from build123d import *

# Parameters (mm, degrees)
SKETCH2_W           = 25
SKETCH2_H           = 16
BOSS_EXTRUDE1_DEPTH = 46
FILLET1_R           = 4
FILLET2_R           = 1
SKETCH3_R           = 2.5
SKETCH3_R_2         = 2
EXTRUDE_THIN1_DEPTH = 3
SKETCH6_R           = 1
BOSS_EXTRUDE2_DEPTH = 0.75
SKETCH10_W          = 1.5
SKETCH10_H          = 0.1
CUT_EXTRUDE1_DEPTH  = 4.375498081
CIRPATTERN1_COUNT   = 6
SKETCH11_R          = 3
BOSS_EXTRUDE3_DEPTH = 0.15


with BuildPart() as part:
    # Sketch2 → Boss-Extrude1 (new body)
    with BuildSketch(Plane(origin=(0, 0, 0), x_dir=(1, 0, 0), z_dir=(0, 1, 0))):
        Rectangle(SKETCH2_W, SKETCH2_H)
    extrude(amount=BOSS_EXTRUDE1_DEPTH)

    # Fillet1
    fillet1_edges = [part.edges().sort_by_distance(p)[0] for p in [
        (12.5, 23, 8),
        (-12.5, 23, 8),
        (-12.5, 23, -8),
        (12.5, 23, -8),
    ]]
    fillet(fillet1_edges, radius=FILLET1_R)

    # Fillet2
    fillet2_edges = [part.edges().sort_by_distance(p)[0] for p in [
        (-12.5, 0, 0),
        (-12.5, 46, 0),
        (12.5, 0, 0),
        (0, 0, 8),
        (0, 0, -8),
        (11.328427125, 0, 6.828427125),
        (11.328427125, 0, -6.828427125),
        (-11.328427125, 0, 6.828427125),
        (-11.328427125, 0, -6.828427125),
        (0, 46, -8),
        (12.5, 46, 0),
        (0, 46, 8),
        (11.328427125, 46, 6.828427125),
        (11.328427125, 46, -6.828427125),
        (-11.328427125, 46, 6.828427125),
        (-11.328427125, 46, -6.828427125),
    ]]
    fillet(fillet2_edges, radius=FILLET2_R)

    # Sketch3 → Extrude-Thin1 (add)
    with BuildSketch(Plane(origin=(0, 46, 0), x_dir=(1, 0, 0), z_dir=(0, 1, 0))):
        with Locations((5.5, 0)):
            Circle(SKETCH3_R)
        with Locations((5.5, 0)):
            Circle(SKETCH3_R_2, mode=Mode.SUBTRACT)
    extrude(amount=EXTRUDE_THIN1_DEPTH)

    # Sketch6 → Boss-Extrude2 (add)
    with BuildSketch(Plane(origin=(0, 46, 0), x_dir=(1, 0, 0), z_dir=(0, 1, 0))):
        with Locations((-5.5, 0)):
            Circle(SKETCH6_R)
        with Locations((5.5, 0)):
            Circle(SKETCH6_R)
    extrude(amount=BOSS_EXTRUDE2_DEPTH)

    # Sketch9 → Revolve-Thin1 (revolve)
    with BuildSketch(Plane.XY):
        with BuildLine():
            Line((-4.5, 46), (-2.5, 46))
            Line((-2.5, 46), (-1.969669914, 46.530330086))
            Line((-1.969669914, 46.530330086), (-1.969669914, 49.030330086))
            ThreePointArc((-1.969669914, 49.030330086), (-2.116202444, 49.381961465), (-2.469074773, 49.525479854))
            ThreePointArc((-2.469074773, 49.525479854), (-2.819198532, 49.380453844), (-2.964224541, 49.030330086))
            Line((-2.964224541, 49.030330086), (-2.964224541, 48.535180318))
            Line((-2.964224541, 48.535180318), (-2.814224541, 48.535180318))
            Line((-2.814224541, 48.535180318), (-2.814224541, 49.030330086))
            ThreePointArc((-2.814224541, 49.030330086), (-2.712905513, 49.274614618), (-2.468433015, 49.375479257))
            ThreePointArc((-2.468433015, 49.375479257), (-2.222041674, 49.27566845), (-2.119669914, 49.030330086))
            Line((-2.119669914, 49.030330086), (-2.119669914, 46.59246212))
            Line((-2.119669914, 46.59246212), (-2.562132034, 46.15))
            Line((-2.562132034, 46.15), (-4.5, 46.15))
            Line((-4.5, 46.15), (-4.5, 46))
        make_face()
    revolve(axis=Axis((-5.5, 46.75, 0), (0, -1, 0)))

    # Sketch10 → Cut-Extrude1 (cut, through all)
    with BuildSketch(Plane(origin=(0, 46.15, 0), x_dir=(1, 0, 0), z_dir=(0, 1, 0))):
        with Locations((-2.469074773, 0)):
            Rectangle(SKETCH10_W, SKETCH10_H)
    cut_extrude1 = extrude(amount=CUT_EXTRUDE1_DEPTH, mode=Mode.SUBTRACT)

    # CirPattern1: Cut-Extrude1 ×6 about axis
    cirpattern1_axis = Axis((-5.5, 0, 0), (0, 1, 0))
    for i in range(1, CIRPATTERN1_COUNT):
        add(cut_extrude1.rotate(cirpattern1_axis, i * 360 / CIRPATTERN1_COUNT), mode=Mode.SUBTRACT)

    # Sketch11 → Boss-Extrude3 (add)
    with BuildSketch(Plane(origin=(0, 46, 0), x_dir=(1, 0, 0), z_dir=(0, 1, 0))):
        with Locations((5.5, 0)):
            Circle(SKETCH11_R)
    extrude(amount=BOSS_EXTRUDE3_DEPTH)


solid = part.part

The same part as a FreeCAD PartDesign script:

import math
import FreeCAD as App
import Part
import Sketcher

V = App.Vector
Q = App.Units.Quantity


def edges_at(feature, points):
    """Names of the edges that pass closest to the given points."""
    edges = feature.Shape.Edges
    near = lambda p: min(range(len(edges)), key=lambda i: edges[i].distToShape(Part.Vertex(*p))[0])
    return sorted({f"Edge{near(p) + 1}" for p in points})


def add_polygon(sketch, points):
    """Adds a closed chain of lines whose ends are joined by coincident constraints."""
    first, n = sketch.GeometryCount, len(points)
    for a, b in zip(points, points[1:] + points[:1]):
        sketch.addGeometry(Part.LineSegment(App.Vector(*a, 0), App.Vector(*b, 0)), False)
    for i in range(n):
        sketch.addConstraint(Sketcher.Constraint("Coincident", first + i, 2, first + (i + 1) % n, 1))

doc = App.newDocument("Part")
params = doc.addObject("Spreadsheet::Sheet", "Params")
for row, (alias, value) in enumerate([
    ("sketch1_width", "25 mm"),
    ("sketch1_height", "16 mm"),
    ("pad1_length", "46 mm"),
    ("fillet_radius", "4 mm"),
    ("fillet2_radius", "1 mm"),
    ("sketch2_diameter", "5 mm"),
    ("sketch2_diameter2", "4 mm"),
    ("pad2_length", "3 mm"),
    ("sketch3_diameter", "2 mm"),
    ("pad3_length", "0.75 mm"),
    ("sketch4_width", "2 mm"),
    ("sketch4_height", "2.5 mm"),
    ("sketch4_width2", "0.15 mm"),
    ("sketch4_length", "0.75 mm"),
    ("revolution_angle", "360 deg"),
    ("sketch5_width", "1.5 mm"),
    ("sketch5_height", "0.1 mm"),
    ("sketch6_diameter", "6 mm"),
    ("pad4_length", "0.15 mm"),
], start=1):
    params.set(f"A{row}", alias)
    params.set(f"B{row}", "=" + value)
    params.setAlias(f"B{row}", alias)

body = doc.addObject("PartDesign::Body", "Body")

sketch1 = doc.addObject("Sketcher::SketchObject", "Sketch")
body.addObject(sketch1)
sketch1.AttachmentSupport = (doc.XZ_Plane, [""])
sketch1.MapMode = "FlatFace"
add_polygon(sketch1, [(-12.5, -8), (-12.5, 8), (12.5, 8), (12.5, -8)])
sketch1.addConstraint([
    Sketcher.Constraint("Vertical", 0),
    Sketcher.Constraint("Horizontal", 1),
    Sketcher.Constraint("Vertical", 2),
    Sketcher.Constraint("Horizontal", 3),
    Sketcher.Constraint("Symmetric", 0, 2, 2, 2, -1, 1),
    Sketcher.Constraint("DistanceX", 1, 1, 1, 2, Q("25 mm")),
    Sketcher.Constraint("DistanceY", 0, 1, 0, 2, Q("16 mm")),
])
sketch1.setExpression("Constraints[9]", "Params.sketch1_width")
sketch1.setExpression("Constraints[10]", "Params.sketch1_height")
pad1 = doc.addObject("PartDesign::Pad", "Pad")
body.addObject(pad1)
pad1.Profile = sketch1
pad1.setExpression("Length", "Params.pad1_length")
pad1.Reversed = True
doc.recompute()

fillet = doc.addObject("PartDesign::Fillet", "Fillet")
body.addObject(fillet)
fillet.Base = (pad1, edges_at(pad1, [
    (12.5, 23, 8),
    (-12.5, 23, 8),
    (-12.5, 23, -8),
    (12.5, 23, -8),
]))
fillet.setExpression("Radius", "Params.fillet_radius")
doc.recompute()

fillet2 = doc.addObject("PartDesign::Fillet", "Fillet001")
body.addObject(fillet2)
fillet2.Base = (fillet, edges_at(fillet, [
    (-12.5, 0, 0),
    (-12.5, 46, 0),
    (12.5, 0, 0),
    (0, 0, 8),
    (0, 0, -8),
    (11.328, 0, 6.828),
    (11.328, 0, -6.828),
    (-11.328, 0, 6.828),
    (-11.328, 0, -6.828),
    (0, 46, -8),
    (12.5, 46, 0),
    (0, 46, 8),
    (11.328, 46, 6.828),
    (11.328, 46, -6.828),
    (-11.328, 46, 6.828),
    (-11.328, 46, -6.828),
]))
fillet2.setExpression("Radius", "Params.fillet2_radius")

sketch2 = doc.addObject("Sketcher::SketchObject", "Sketch001")
body.addObject(sketch2)
sketch2.AttachmentSupport = (doc.XZ_Plane, [""])
sketch2.MapMode = "FlatFace"
sketch2.AttachmentOffset = App.Placement(V(0, 0, -46), App.Rotation())
sketch2.addGeometry([
    Part.Circle(V(5.5, 0, 0), V(0, 0, 1), 2.5),
    Part.Circle(V(5.5, 0, 0), V(0, 0, 1), 2),
], False)
sketch2.addConstraint([
    Sketcher.Constraint("Coincident", 1, 3, 0, 3),
    Sketcher.Constraint("PointOnObject", 0, 3, -1),
    Sketcher.Constraint("Diameter", 0, Q("5 mm")),
    Sketcher.Constraint("Diameter", 1, Q("4 mm")),
    Sketcher.Constraint("DistanceX", -1, 1, 0, 3, Q("5.5 mm")),
])
sketch2.setExpression("Constraints[2]", "Params.sketch2_diameter")
sketch2.setExpression("Constraints[3]", "Params.sketch2_diameter2")
pad2 = doc.addObject("PartDesign::Pad", "Pad001")
body.addObject(pad2)
pad2.Profile = sketch2
pad2.setExpression("Length", "Params.pad2_length")
pad2.Reversed = True

sketch3 = doc.addObject("Sketcher::SketchObject", "Sketch002")
body.addObject(sketch3)
sketch3.AttachmentSupport = (doc.XZ_Plane, [""])
sketch3.MapMode = "FlatFace"
sketch3.AttachmentOffset = App.Placement(V(0, 0, -46), App.Rotation())
sketch3.addGeometry([
    Part.Circle(V(-5.5, 0, 0), V(0, 0, 1), 1),
    Part.Circle(V(5.5, 0, 0), V(0, 0, 1), 1),
], False)
sketch3.addConstraint([
    Sketcher.Constraint("Equal", 0, 1),
    Sketcher.Constraint("Symmetric", 0, 3, 1, 3, -1, 1),
    Sketcher.Constraint("PointOnObject", 0, 3, -1),
    Sketcher.Constraint("Diameter", 0, Q("2 mm")),
    Sketcher.Constraint("DistanceX", 0, 3, 1, 3, Q("11 mm")),
])
sketch3.setExpression("Constraints[3]", "Params.sketch3_diameter")
pad3 = doc.addObject("PartDesign::Pad", "Pad002")
body.addObject(pad3)
pad3.Profile = sketch3
pad3.setExpression("Length", "Params.pad3_length")
pad3.Reversed = True

sketch4 = doc.addObject("Sketcher::SketchObject", "Sketch003")
body.addObject(sketch4)
sketch4.AttachmentSupport = (doc.XY_Plane, [""])
sketch4.MapMode = "FlatFace"
sketch4.addGeometry([
    Part.LineSegment(V(-4.5, 46, 0), V(-2.5, 46, 0)),
    Part.LineSegment(V(-2.5, 46, 0), V(-1.96967, 46.53033, 0)),
    Part.LineSegment(V(-1.96967, 46.53033, 0), V(-1.96967, 49.03033, 0)),
    Part.ArcOfCircle(Part.Circle(V(-2.464838, 49.03033, 0), V(0, 0, 1), 0.495168), math.radians(0), math.radians(90.490264)),
    Part.ArcOfCircle(Part.Circle(V(-2.469075, 49.03033, 0), V(0, 0, 1), 0.49515), math.radians(90), math.radians(180)),
    Part.LineSegment(V(-2.964225, 49.03033, 0), V(-2.964225, 48.53518, 0)),
    Part.LineSegment(V(-2.964225, 48.53518, 0), V(-2.814225, 48.53518, 0)),
    Part.LineSegment(V(-2.814225, 48.53518, 0), V(-2.814225, 49.03033, 0)),
    Part.ArcOfCircle(Part.Circle(V(-2.469075, 49.03033, 0), V(0, 0, 1), 0.34515), math.radians(89.893466), math.radians(180)),
    Part.ArcOfCircle(Part.Circle(V(-2.464838, 49.03033, 0), V(0, 0, 1), 0.345168), math.radians(0), math.radians(90.596793)),
    Part.LineSegment(V(-2.11967, 49.03033, 0), V(-2.11967, 46.592462, 0)),
    Part.LineSegment(V(-2.11967, 46.592462, 0), V(-2.562132, 46.15, 0)),
    Part.LineSegment(V(-2.562132, 46.15, 0), V(-4.5, 46.15, 0)),
    Part.LineSegment(V(-4.5, 46.15, 0), V(-4.5, 46, 0)),
], False)
sketch4.addGeometry(Part.LineSegment(V(-5.5, 49.52548, 0), V(-5.5, 46, 0)), True)
sketch4.addConstraint([
    Sketcher.Constraint("Coincident", 0, 2, 1, 1),
    Sketcher.Constraint("Coincident", 1, 2, 2, 1),
    Sketcher.Constraint("Tangent", 2, 2, 3, 1),
    Sketcher.Constraint("Coincident", 3, 2, 4, 1),
    Sketcher.Constraint("Tangent", 4, 2, 5, 1),
    Sketcher.Constraint("Coincident", 5, 2, 6, 1),
    Sketcher.Constraint("Coincident", 6, 2, 7, 1),
    Sketcher.Constraint("Tangent", 7, 2, 8, 2),
    Sketcher.Constraint("Coincident", 8, 1, 9, 2),
    Sketcher.Constraint("Tangent", 9, 1, 10, 1),
    Sketcher.Constraint("Coincident", 10, 2, 11, 1),
    Sketcher.Constraint("Coincident", 11, 2, 12, 1),
    Sketcher.Constraint("Coincident", 12, 2, 13, 1),
    Sketcher.Constraint("Coincident", 13, 2, 0, 1),
    Sketcher.Constraint("Horizontal", 0),
    Sketcher.Constraint("Vertical", 2),
    Sketcher.Constraint("Vertical", 5),
    Sketcher.Constraint("Horizontal", 6),
    Sketcher.Constraint("Vertical", 7),
    Sketcher.Constraint("Vertical", 10),
    Sketcher.Constraint("Horizontal", 12),
    Sketcher.Constraint("Vertical", 13),
    Sketcher.Constraint("Vertical", 14),
    Sketcher.Constraint("Coincident", 8, 3, 4, 3),
    Sketcher.Constraint("Coincident", 9, 3, 3, 3),
    Sketcher.Constraint("Parallel", 1, 11),
    Sketcher.Constraint("Horizontal", 3, 3, 4, 3),
    Sketcher.Constraint("Horizontal", 3, 2, 14, 1),
    Sketcher.Constraint("Horizontal", 13, 2, 14, 2),
    Sketcher.Constraint("Vertical", 8, 3, 3, 2),
    Sketcher.Constraint("Equal", 6, 13),
    Sketcher.Constraint("DistanceX", 0, 1, 0, 2, Q("2 mm")),
    Sketcher.Constraint("Angle", 1, Q("45 deg")),
    Sketcher.Constraint("DistanceY", 2, 1, 2, 2, Q("2.5 mm")),
    Sketcher.Constraint("DistanceY", -1, 1, 0, 2, Q("46 mm")),
    Sketcher.Constraint("DistanceX", 14, 2, 13, 2, Q("1 mm")),
    Sketcher.Constraint("DistanceX", 6, 1, 6, 2, Q("0.15 mm")),
    Sketcher.Constraint("DistanceX", 0, 2, -1, 1, Q("2.5 mm")),
    Sketcher.Constraint("Distance", 1, Q("0.75 mm")),
    Sketcher.Constraint("Radius", 4, Q("0.49515 mm")),
    Sketcher.Constraint("DistanceX", 10, 2, 1, 2, Q("0.15 mm")),
    Sketcher.Constraint("DistanceY", 5, 2, 5, 1, Q("0.49515 mm")),
    Sketcher.Constraint("DistanceX", 12, 2, 12, 1, Q("1.937868 mm")),
    Sketcher.Constraint("DistanceX", 3, 2, 8, 1, Q("0.000642 mm")),
])
sketch4.setExpression("Constraints[31]", "Params.sketch4_width")
sketch4.setExpression("Constraints[33]", "Params.sketch4_height")
sketch4.setExpression("Constraints[36]", "Params.sketch4_width2")
sketch4.setExpression("Constraints[38]", "Params.sketch4_length")
revolution = doc.addObject("PartDesign::Revolution", "Revolution")
body.addObject(revolution)
revolution.Profile = sketch4
revolution.ReferenceAxis = (sketch4, ["Axis0"])
revolution.setExpression("Angle", "Params.revolution_angle")

sketch5 = doc.addObject("Sketcher::SketchObject", "Sketch004")
body.addObject(sketch5)
sketch5.AttachmentSupport = (doc.XZ_Plane, [""])
sketch5.MapMode = "FlatFace"
sketch5.AttachmentOffset = App.Placement(V(0, 0, -46.15), App.Rotation())
add_polygon(sketch5, [(-3.219075, -0.05), (-3.219075, 0.05), (-1.719075, 0.05), (-1.719075, -0.05)])
sketch5.addConstraint([
    Sketcher.Constraint("Vertical", 0),
    Sketcher.Constraint("Horizontal", 1),
    Sketcher.Constraint("Vertical", 2),
    Sketcher.Constraint("Horizontal", 3),
    Sketcher.Constraint("DistanceX", 1, 1, 1, 2, Q("1.5 mm")),
    Sketcher.Constraint("DistanceY", 0, 1, 0, 2, Q("0.1 mm")),
    Sketcher.Constraint("DistanceY", -1, 1, 0, 2, Q("0.05 mm")),
    Sketcher.Constraint("DistanceX", 0, 2, -1, 1, Q("3.219075 mm")),
])
sketch5.setExpression("Constraints[8]", "Params.sketch5_width")
sketch5.setExpression("Constraints[9]", "Params.sketch5_height")
pocket1 = doc.addObject("PartDesign::Pocket", "Pocket")
body.addObject(pocket1)
pocket1.Profile = sketch5
pocket1.Type = "ThroughAll"
doc.recompute()

datumline = doc.addObject("PartDesign::Line", "DatumLine")
body.addObject(datumline)
datumline.Placement = App.Placement(V(-5.5, 0, 0), App.Rotation(V(0, 0, 1), V(0, 1, 0)))
polarpattern = doc.addObject("PartDesign::PolarPattern", "PolarPattern")
body.addObject(polarpattern)
polarpattern.Originals = [pocket1]
polarpattern.Axis = (datumline, [""])
polarpattern.Angle = 360
polarpattern.Occurrences = 6
body.Tip = polarpattern

sketch6 = doc.addObject("Sketcher::SketchObject", "Sketch005")
body.addObject(sketch6)
sketch6.AttachmentSupport = (doc.XZ_Plane, [""])
sketch6.MapMode = "FlatFace"
sketch6.AttachmentOffset = App.Placement(V(0, 0, -46), App.Rotation())
sketch6.addGeometry(Part.Circle(V(5.5, 0, 0), V(0, 0, 1), 3), False)
sketch6.addConstraint([
    Sketcher.Constraint("PointOnObject", 0, 3, -1),
    Sketcher.Constraint("Diameter", 0, Q("6 mm")),
    Sketcher.Constraint("DistanceX", -1, 1, 0, 3, Q("5.5 mm")),
])
sketch6.setExpression("Constraints[1]", "Params.sketch6_diameter")
pad4 = doc.addObject("PartDesign::Pad", "Pad003")
body.addObject(pad4)
pad4.Profile = sketch6
pad4.setExpression("Length", "Params.pad4_length")
pad4.Reversed = True

doc.recompute()
